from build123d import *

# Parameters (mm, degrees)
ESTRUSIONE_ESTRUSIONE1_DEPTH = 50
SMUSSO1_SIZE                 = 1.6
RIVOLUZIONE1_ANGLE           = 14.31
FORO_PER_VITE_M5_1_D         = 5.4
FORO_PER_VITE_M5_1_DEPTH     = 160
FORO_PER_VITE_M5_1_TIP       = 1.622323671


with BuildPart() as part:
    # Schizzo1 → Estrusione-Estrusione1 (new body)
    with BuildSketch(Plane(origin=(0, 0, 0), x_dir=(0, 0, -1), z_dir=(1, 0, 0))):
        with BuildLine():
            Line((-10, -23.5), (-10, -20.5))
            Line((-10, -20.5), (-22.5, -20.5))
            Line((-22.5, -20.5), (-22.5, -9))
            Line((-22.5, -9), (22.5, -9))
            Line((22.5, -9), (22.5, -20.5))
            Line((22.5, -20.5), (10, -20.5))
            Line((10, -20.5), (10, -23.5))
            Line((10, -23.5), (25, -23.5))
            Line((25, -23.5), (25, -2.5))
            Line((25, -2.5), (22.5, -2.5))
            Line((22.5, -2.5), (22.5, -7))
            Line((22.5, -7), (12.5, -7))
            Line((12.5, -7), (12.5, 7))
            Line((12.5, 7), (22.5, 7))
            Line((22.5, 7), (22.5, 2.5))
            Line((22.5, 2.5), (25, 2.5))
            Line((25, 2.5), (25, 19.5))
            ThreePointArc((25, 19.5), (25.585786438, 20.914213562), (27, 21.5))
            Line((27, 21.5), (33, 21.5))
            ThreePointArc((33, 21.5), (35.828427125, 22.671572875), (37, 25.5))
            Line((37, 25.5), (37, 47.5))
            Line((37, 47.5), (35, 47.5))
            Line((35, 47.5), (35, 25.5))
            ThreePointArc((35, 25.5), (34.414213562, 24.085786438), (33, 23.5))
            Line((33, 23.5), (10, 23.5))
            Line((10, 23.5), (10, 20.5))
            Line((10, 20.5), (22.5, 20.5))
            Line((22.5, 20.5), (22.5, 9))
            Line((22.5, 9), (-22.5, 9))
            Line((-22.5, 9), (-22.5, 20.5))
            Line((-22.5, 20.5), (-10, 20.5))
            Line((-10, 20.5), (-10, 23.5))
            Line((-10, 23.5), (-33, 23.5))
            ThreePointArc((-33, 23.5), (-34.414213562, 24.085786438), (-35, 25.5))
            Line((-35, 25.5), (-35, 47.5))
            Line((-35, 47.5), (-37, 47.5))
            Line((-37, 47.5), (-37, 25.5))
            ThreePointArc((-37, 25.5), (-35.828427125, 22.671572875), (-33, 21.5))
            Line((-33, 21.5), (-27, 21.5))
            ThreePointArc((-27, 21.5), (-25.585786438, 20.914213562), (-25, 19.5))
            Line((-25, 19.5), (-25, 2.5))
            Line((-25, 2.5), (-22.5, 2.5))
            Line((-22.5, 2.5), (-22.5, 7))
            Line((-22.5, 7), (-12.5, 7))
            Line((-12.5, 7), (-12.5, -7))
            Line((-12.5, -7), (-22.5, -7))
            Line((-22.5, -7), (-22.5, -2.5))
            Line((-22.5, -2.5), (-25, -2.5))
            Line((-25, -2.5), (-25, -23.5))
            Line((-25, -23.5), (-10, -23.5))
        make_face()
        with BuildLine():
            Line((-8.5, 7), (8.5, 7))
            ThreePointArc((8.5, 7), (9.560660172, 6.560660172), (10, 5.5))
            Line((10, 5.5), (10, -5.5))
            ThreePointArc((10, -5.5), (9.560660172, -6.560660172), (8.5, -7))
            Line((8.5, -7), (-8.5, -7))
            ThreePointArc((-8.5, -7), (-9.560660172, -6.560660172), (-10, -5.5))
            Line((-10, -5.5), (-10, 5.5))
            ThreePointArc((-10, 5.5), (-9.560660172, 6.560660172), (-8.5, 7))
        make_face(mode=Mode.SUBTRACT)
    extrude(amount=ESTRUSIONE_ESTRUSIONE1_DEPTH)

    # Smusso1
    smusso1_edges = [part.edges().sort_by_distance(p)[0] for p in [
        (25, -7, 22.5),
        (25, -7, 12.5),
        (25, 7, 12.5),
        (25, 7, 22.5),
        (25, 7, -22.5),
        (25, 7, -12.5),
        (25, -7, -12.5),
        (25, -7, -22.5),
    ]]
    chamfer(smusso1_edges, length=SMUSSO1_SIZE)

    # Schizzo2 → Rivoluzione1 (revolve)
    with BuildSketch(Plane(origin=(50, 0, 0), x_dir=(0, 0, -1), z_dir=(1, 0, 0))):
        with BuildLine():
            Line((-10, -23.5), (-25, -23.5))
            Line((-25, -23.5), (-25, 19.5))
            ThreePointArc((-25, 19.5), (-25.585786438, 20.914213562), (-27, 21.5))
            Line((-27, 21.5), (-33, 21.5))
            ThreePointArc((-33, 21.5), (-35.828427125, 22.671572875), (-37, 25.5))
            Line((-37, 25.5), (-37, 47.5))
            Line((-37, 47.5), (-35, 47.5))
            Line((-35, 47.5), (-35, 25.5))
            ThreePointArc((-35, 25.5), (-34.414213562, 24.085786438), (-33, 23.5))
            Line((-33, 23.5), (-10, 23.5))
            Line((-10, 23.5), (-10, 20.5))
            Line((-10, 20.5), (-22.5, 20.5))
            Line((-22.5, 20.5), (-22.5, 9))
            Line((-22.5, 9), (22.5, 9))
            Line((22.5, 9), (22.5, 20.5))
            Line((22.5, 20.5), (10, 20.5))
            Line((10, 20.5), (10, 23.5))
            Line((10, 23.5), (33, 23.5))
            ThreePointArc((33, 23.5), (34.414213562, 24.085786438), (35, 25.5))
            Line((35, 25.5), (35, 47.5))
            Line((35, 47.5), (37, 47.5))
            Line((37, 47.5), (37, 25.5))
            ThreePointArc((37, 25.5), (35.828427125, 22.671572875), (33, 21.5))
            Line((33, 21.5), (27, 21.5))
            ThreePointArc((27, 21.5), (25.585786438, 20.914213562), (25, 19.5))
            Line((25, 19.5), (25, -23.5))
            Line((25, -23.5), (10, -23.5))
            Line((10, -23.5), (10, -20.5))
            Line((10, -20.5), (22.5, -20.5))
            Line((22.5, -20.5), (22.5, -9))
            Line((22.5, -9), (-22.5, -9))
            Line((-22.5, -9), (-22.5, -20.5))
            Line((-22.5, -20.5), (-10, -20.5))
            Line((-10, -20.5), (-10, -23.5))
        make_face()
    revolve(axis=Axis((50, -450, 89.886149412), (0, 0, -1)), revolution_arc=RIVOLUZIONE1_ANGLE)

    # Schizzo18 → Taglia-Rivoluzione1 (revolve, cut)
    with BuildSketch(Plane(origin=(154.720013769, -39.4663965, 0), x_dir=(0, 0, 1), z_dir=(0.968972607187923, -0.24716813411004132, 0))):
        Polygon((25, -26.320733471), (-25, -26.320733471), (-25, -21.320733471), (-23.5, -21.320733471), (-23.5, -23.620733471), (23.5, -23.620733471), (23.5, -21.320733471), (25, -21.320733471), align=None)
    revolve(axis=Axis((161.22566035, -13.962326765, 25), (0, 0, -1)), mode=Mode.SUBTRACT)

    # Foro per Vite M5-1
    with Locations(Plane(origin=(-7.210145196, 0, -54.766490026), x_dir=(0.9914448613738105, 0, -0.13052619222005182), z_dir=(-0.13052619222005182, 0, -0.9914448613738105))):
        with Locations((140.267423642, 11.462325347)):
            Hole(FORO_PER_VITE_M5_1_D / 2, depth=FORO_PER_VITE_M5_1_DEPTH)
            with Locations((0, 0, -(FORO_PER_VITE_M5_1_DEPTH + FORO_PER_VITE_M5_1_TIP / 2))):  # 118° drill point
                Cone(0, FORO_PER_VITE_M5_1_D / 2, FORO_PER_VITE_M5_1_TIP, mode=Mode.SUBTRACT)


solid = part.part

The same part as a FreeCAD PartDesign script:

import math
import FreeCAD as App
import Part
import Sketcher

V = App.Vector
Q = App.Units.Quantity


def edges_at(feature, points):
    """Names of the edges that pass closest to the given points."""
    edges = feature.Shape.Edges
    near = lambda p: min(range(len(edges)), key=lambda i: edges[i].distToShape(Part.Vertex(*p))[0])
    return sorted({f"Edge{near(p) + 1}" for p in points})


def add_polygon(sketch, points):
    """Adds a closed chain of lines whose ends are joined by coincident constraints."""
    first, n = sketch.GeometryCount, len(points)
    for a, b in zip(points, points[1:] + points[:1]):
        sketch.addGeometry(Part.LineSegment(App.Vector(*a, 0), App.Vector(*b, 0)), False)
    for i in range(n):
        sketch.addConstraint(Sketcher.Constraint("Coincident", first + i, 2, first + (i + 1) % n, 1))

doc = App.newDocument("Part")
body = doc.addObject("PartDesign::Body", "Body")

sketch1 = body.newObject("Sketcher::SketchObject", "Sketch")
sketch1.AttachmentSupport = (doc.getObject("YZ_Plane"), [""])
sketch1.MapMode = "FlatFace"
sketch1.addGeometry(Part.LineSegment(V(-23.5, 10, 0), V(-20.5, 10, 0)), False)
sketch1.addGeometry(Part.LineSegment(V(-20.5, 10, 0), V(-20.5, 22.5, 0)), False)
sketch1.addGeometry(Part.LineSegment(V(-20.5, 22.5, 0), V(-9, 22.5, 0)), False)
sketch1.addGeometry(Part.LineSegment(V(-9, 22.5, 0), V(-9, -22.5, 0)), False)
sketch1.addGeometry(Part.LineSegment(V(-9, -22.5, 0), V(-20.5, -22.5, 0)), False)
sketch1.addGeometry(Part.LineSegment(V(-20.5, -22.5, 0), V(-20.5, -10, 0)), False)
sketch1.addGeometry(Part.LineSegment(V(-20.5, -10, 0), V(-23.5, -10, 0)), False)
sketch1.addGeometry(Part.LineSegment(V(-23.5, -10, 0), V(-23.5, -25, 0)), False)
sketch1.addGeometry(Part.LineSegment(V(-23.5, -25, 0), V(-2.5, -25, 0)), False)
sketch1.addGeometry(Part.LineSegment(V(-2.5, -25, 0), V(-2.5, -22.5, 0)), False)
sketch1.addGeometry(Part.LineSegment(V(-2.5, -22.5, 0), V(-7, -22.5, 0)), False)
sketch1.addGeometry(Part.LineSegment(V(-7, -22.5, 0), V(-7, -12.5, 0)), False)
sketch1.addGeometry(Part.LineSegment(V(-7, -12.5, 0), V(7, -12.5, 0)), False)
sketch1.addGeometry(Part.LineSegment(V(7, -12.5, 0), V(7, -22.5, 0)), False)
sketch1.addGeometry(Part.LineSegment(V(7, -22.5, 0), V(2.5, -22.5, 0)), False)
sketch1.addGeometry(Part.LineSegment(V(2.5, -22.5, 0), V(2.5, -25, 0)), False)
sketch1.addGeometry(Part.LineSegment(V(2.5, -25, 0), V(19.5, -25, 0)), False)
sketch1.addGeometry(Part.ArcOfCircle(Part.Circle(V(19.5, -27, 0), V(0, 0, 1), 2), math.radians(0), math.radians(90)), False)
sketch1.addGeometry(Part.LineSegment(V(21.5, -27, 0), V(21.5, -33, 0)), False)
sketch1.addGeometry(Part.ArcOfCircle(Part.Circle(V(25.5, -33, 0), V(0, 0, 1), 4), math.radians(180), math.radians(270)), False)
sketch1.addGeometry(Part.LineSegment(V(25.5, -37, 0), V(47.5, -37, 0)), False)
sketch1.addGeometry(Part.LineSegment(V(47.5, -37, 0), V(47.5, -35, 0)), False)
sketch1.addGeometry(Part.LineSegment(V(47.5, -35, 0), V(25.5, -35, 0)), False)
sketch1.addGeometry(Part.ArcOfCircle(Part.Circle(V(25.5, -33, 0), V(0, 0, 1), 2), math.radians(-180), math.radians(-90)), False)
sketch1.addGeometry(Part.LineSegment(V(23.5, -33, 0), V(23.5, -10, 0)), False)
sketch1.addGeometry(Part.LineSegment(V(23.5, -10, 0), V(20.5, -10, 0)), False)
sketch1.addGeometry(Part.LineSegment(V(20.5, -10, 0), V(20.5, -22.5, 0)), False)
sketch1.addGeometry(Part.LineSegment(V(20.5, -22.5, 0), V(9, -22.5, 0)), False)
sketch1.addGeometry(Part.LineSegment(V(9, -22.5, 0), V(9, 22.5, 0)), False)
sketch1.addGeometry(Part.LineSegment(V(9, 22.5, 0), V(20.5, 22.5, 0)), False)
sketch1.addGeometry(Part.LineSegment(V(20.5, 22.5, 0), V(20.5, 10, 0)), False)
sketch1.addGeometry(Part.LineSegment(V(20.5, 10, 0), V(23.5, 10, 0)), False)
sketch1.addGeometry(Part.LineSegment(V(23.5, 10, 0), V(23.5, 33, 0)), False)
sketch1.addGeometry(Part.ArcOfCircle(Part.Circle(V(25.5, 33, 0), V(0, 0, 1), 2), math.radians(90), math.radians(180)), False)
sketch1.addGeometry(Part.LineSegment(V(25.5, 35, 0), V(47.5, 35, 0)), False)
sketch1.addGeometry(Part.LineSegment(V(47.5, 35, 0), V(47.5, 37, 0)), False)
sketch1.addGeometry(Part.LineSegment(V(47.5, 37, 0), V(25.5, 37, 0)), False)
sketch1.addGeometry(Part.ArcOfCircle(Part.Circle(V(25.5, 33, 0), V(0, 0, 1), 4), math.radians(90), math.radians(180)), False)
sketch1.addGeometry(Part.LineSegment(V(21.5, 33, 0), V(21.5, 27, 0)), False)
sketch1.addGeometry(Part.ArcOfCircle(Part.Circle(V(19.5, 27, 0), V(0, 0, 1), 2), math.radians(-90), math.radians(0)), False)
sketch1.addGeometry(Part.LineSegment(V(19.5, 25, 0), V(2.5, 25, 0)), False)
sketch1.addGeometry(Part.LineSegment(V(2.5, 25, 0), V(2.5, 22.5, 0)), False)
sketch1.addGeometry(Part.LineSegment(V(2.5, 22.5, 0), V(7, 22.5, 0)), False)
sketch1.addGeometry(Part.LineSegment(V(7, 22.5, 0), V(7, 12.5, 0)), False)
sketch1.addGeometry(Part.LineSegment(V(7, 12.5, 0), V(-7, 12.5, 0)), False)
sketch1.addGeometry(Part.LineSegment(V(-7, 12.5, 0), V(-7, 22.5, 0)), False)
sketch1.addGeometry(Part.LineSegment(V(-7, 22.5, 0), V(-2.5, 22.5, 0)), False)
sketch1.addGeometry(Part.LineSegment(V(-2.5, 22.5, 0), V(-2.5, 25, 0)), False)
sketch1.addGeometry(Part.LineSegment(V(-2.5, 25, 0), V(-23.5, 25, 0)), False)
sketch1.addGeometry(Part.LineSegment(V(-23.5, 25, 0), V(-23.5, 10, 0)), False)
sketch1.addGeometry(Part.ArcOfCircle(Part.Circle(V(5.5, 8.5, 0), V(0, 0, 1), 1.5), math.radians(0), math.radians(90)), False)
sketch1.addGeometry(Part.LineSegment(V(7, 8.5, 0), V(7, -8.5, 0)), False)
sketch1.addGeometry(Part.ArcOfCircle(Part.Circle(V(5.5, -8.5, 0), V(0, 0, 1), 1.5), math.radians(-90), math.radians(0)), False)
sketch1.addGeometry(Part.LineSegment(V(5.5, -10, 0), V(-5.5, -10, 0)), False)
sketch1.addGeometry(Part.ArcOfCircle(Part.Circle(V(-5.5, -8.5, 0), V(0, 0, 1), 1.5), math.radians(180), math.radians(270)), False)
sketch1.addGeometry(Part.LineSegment(V(-7, -8.5, 0), V(-7, 8.5, 0)), False)
sketch1.addGeometry(Part.ArcOfCircle(Part.Circle(V(-5.5, 8.5, 0), V(0, 0, 1), 1.5), math.radians(90), math.radians(180)), False)
sketch1.addGeometry(Part.LineSegment(V(-5.5, 10, 0), V(5.5, 10, 0)), False)
sketch1.addConstraint(Sketcher.Constraint("Coincident", 0, 2, 1, 1))
sketch1.addConstraint(Sketcher.Constraint("Coincident", 1, 2, 2, 1))
sketch1.addConstraint(Sketcher.Constraint("Coincident", 2, 2, 3, 1))
sketch1.addConstraint(Sketcher.Constraint("Coincident", 3, 2, 4, 1))
sketch1.addConstraint(Sketcher.Constraint("Coincident", 4, 2, 5, 1))
sketch1.addConstraint(Sketcher.Constraint("Coincident", 5, 2, 6, 1))
sketch1.addConstraint(Sketcher.Constraint("Coincident", 6, 2, 7, 1))
sketch1.addConstraint(Sketcher.Constraint("Coincident", 7, 2, 8, 1))
sketch1.addConstraint(Sketcher.Constraint("Coincident", 8, 2, 9, 1))
sketch1.addConstraint(Sketcher.Constraint("Coincident", 9, 2, 10, 1))
sketch1.addConstraint(Sketcher.Constraint("Coincident", 10, 2, 11, 1))
sketch1.addConstraint(Sketcher.Constraint("Coincident", 11, 2, 12, 1))
sketch1.addConstraint(Sketcher.Constraint("Coincident", 12, 2, 13, 1))
sketch1.addConstraint(Sketcher.Constraint("Coincident", 13, 2, 14, 1))
sketch1.addConstraint(Sketcher.Constraint("Coincident", 14, 2, 15, 1))
sketch1.addConstraint(Sketcher.Constraint("Coincident", 15, 2, 16, 1))
sketch1.addConstraint(Sketcher.Constraint("Tangent", 16, 2, 17, 2))
sketch1.addConstraint(Sketcher.Constraint("Tangent", 17, 1, 18, 1))
sketch1.addConstraint(Sketcher.Constraint("Tangent", 18, 2, 19, 1))
sketch1.addConstraint(Sketcher.Constraint("Tangent", 19, 2, 20, 1))
sketch1.addConstraint(Sketcher.Constraint("Coincident", 20, 2, 21, 1))
sketch1.addConstraint(Sketcher.Constraint("Coincident", 21, 2, 22, 1))
sketch1.addConstraint(Sketcher.Constraint("Tangent", 22, 2, 23, 2))
sketch1.addConstraint(Sketcher.Constraint("Tangent", 23, 1, 24, 1))
sketch1.addConstraint(Sketcher.Constraint("Coincident", 24, 2, 25, 1))
sketch1.addConstraint(Sketcher.Constraint("Coincident", 25, 2, 26, 1))
sketch1.addConstraint(Sketcher.Constraint("Coincident", 26, 2, 27, 1))
sketch1.addConstraint(Sketcher.Constraint("Coincident", 27, 2, 28, 1))
sketch1.addConstraint(Sketcher.Constraint("Coincident", 28, 2, 29, 1))
sketch1.addConstraint(Sketcher.Constraint("Coincident", 29, 2, 30, 1))
sketch1.addConstraint(Sketcher.Constraint("Coincident", 30, 2, 31, 1))
sketch1.addConstraint(Sketcher.Constraint("Coincident", 31, 2, 32, 1))
sketch1.addConstraint(Sketcher.Constraint("Tangent", 32, 2, 33, 2))
sketch1.addConstraint(Sketcher.Constraint("Tangent", 33, 1, 34, 1))
sketch1.addConstraint(Sketcher.Constraint("Coincident", 34, 2, 35, 1))
sketch1.addConstraint(Sketcher.Constraint("Coincident", 35, 2, 36, 1))
sketch1.addConstraint(Sketcher.Constraint("Tangent", 36, 2, 37, 1))
sketch1.addConstraint(Sketcher.Constraint("Tangent", 37, 2, 38, 1))
sketch1.addConstraint(Sketcher.Constraint("Tangent", 38, 2, 39, 2))
sketch1.addConstraint(Sketcher.Constraint("Tangent", 39, 1, 40, 1))
sketch1.addConstraint(Sketcher.Constraint("Coincident", 40, 2, 41, 1))
sketch1.addConstraint(Sketcher.Constraint("Coincident", 41, 2, 42, 1))
sketch1.addConstraint(Sketcher.Constraint("Coincident", 42, 2, 43, 1))
sketch1.addConstraint(Sketcher.Constraint("Coincident", 43, 2, 44, 1))
sketch1.addConstraint(Sketcher.Constraint("Coincident", 44, 2, 45, 1))
sketch1.addConstraint(Sketcher.Constraint("Coincident", 45, 2, 46, 1))
sketch1.addConstraint(Sketcher.Constraint("Coincident", 46, 2, 47, 1))
sketch1.addConstraint(Sketcher.Constraint("Coincident", 47, 2, 48, 1))
sketch1.addConstraint(Sketcher.Constraint("Coincident", 48, 2, 49, 1))
sketch1.addConstraint(Sketcher.Constraint("Coincident", 49, 2, 0, 1))
sketch1.addConstraint(Sketcher.Constraint("Tangent", 50, 1, 51, 1))
sketch1.addConstraint(Sketcher.Constraint("Tangent", 51, 2, 52, 2))
sketch1.addConstraint(Sketcher.Constraint("Tangent", 52, 1, 53, 1))
sketch1.addConstraint(Sketcher.Constraint("Tangent", 53, 2, 54, 2))
sketch1.addConstraint(Sketcher.Constraint("Tangent", 54, 1, 55, 1))
sketch1.addConstraint(Sketcher.Constraint("Tangent", 55, 2, 56, 2))
sketch1.addConstraint(Sketcher.Constraint("Tangent", 56, 1, 57, 1))
sketch1.addConstraint(Sketcher.Constraint("Tangent", 57, 2, 50, 2))
sketch1.addConstraint(Sketcher.Constraint("Horizontal", 0))
sketch1.addConstraint(Sketcher.Constraint("Vertical", 1))
sketch1.addConstraint(Sketcher.Constraint("Horizontal", 2))
sketch1.addConstraint(Sketcher.Constraint("Vertical", 3))
sketch1.addConstraint(Sketcher.Constraint("Horizontal", 4))
sketch1.addConstraint(Sketcher.Constraint("Vertical", 5))
sketch1.addConstraint(Sketcher.Constraint("Horizontal", 6))
sketch1.addConstraint(Sketcher.Constraint("Vertical", 7))
sketch1.addConstraint(Sketcher.Constraint("Horizontal", 8))
sketch1.addConstraint(Sketcher.Constraint("Vertical", 9))
sketch1.addConstraint(Sketcher.Constraint("Horizontal", 10))
sketch1.addConstraint(Sketcher.Constraint("Vertical", 11))
sketch1.addConstraint(Sketcher.Constraint("Horizontal", 12))
sketch1.addConstraint(Sketcher.Constraint("Vertical", 13))
sketch1.addConstraint(Sketcher.Constraint("Horizontal", 14))
sketch1.addConstraint(Sketcher.Constraint("Vertical", 15))
sketch1.addConstraint(Sketcher.Constraint("Horizontal", 16))
sketch1.addConstraint(Sketcher.Constraint("Vertical", 18))
sketch1.addConstraint(Sketcher.Constraint("Horizontal", 20))
sketch1.addConstraint(Sketcher.Constraint("Vertical", 21))
sketch1.addConstraint(Sketcher.Constraint("Horizontal", 22))
sketch1.addConstraint(Sketcher.Constraint("Vertical", 24))
sketch1.addConstraint(Sketcher.Constraint("Horizontal", 25))
sketch1.addConstraint(Sketcher.Constraint("Vertical", 26))
sketch1.addConstraint(Sketcher.Constraint("Horizontal", 27))
sketch1.addConstraint(Sketcher.Constraint("Vertical", 28))
sketch1.addConstraint(Sketcher.Constraint("Horizontal", 29))
sketch1.addConstraint(Sketcher.Constraint("Vertical", 30))
sketch1.addConstraint(Sketcher.Constraint("Horizontal", 31))
sketch1.addConstraint(Sketcher.Constraint("Vertical", 32))
sketch1.addConstraint(Sketcher.Constraint("Horizontal", 34))
sketch1.addConstraint(Sketcher.Constraint("Vertical", 35))
sketch1.addConstraint(Sketcher.Constraint("Horizontal", 36))
sketch1.addConstraint(Sketcher.Constraint("Vertical", 38))
sketch1.addConstraint(Sketcher.Constraint("Horizontal", 40))
sketch1.addConstraint(Sketcher.Constraint("Vertical", 41))
sketch1.addConstraint(Sketcher.Constraint("Horizontal", 42))
sketch1.addConstraint(Sketcher.Constraint("Vertical", 43))
sketch1.addConstraint(Sketcher.Constraint("Horizontal", 44))
sketch1.addConstraint(Sketcher.Constraint("Vertical", 45))
sketch1.addConstraint(Sketcher.Constraint("Horizontal", 46))
sketch1.addConstraint(Sketcher.Constraint("Vertical", 47))
sketch1.addConstraint(Sketcher.Constraint("Horizontal", 48))
sketch1.addConstraint(Sketcher.Constraint("Vertical", 49))
sketch1.addConstraint(Sketcher.Constraint("Vertical", 51))
sketch1.addConstraint(Sketcher.Constraint("Horizontal", 53))
sketch1.addConstraint(Sketcher.Constraint("Vertical", 55))
sketch1.addConstraint(Sketcher.Constraint("Horizontal", 57))
sketch1.addConstraint(Sketcher.Constraint("Coincident", 23, 3, 19, 3))
sketch1.addConstraint(Sketcher.Constraint("Coincident", 37, 3, 33, 3))
sketch1.addConstraint(Sketcher.Constraint("Equal", 17, 23))
sketch1.addConstraint(Sketcher.Constraint("Equal", 23, 33))
sketch1.addConstraint(Sketcher.Constraint("Equal", 19, 37))
sketch1.addConstraint(Sketcher.Constraint("Equal", 33, 39))
sketch1.addConstraint(Sketcher.Constraint("Equal", 50, 52))
sketch1.addConstraint(Sketcher.Constraint("Equal", 52, 54))
sketch1.addConstraint(Sketcher.Constraint("Equal", 54, 56))
sketch1.addConstraint(Sketcher.Constraint("Symmetric", 50, 3, 54, 3, -1, 1))
sketch1.addConstraint(Sketcher.Constraint("Symmetric", 0, 2, 25, 2, -1, 1))
sketch1.addConstraint(Sketcher.Constraint("Symmetric", 2, 2, 27, 2, -1, 1))
sketch1.addConstraint(Sketcher.Constraint("Symmetric", 4, 2, 29, 2, -1, 1))
sketch1.addConstraint(Sketcher.Constraint("Symmetric", 6, 2, 31, 2, -1, 1))
sketch1.addConstraint(Sketcher.Constraint("Symmetric", 8, 2, 40, 2, -1, 1))
sketch1.addConstraint(Sketcher.Constraint("Symmetric", 10, 2, 42, 2, -1, 1))
sketch1.addConstraint(Sketcher.Constraint("Symmetric", 12, 2, 44, 2, -1, 1))
sketch1.addConstraint(Sketcher.Constraint("Symmetric", 14, 2, 46, 2, -1, 1))
sketch1.addConstraint(Sketcher.Constraint("Symmetric", 10, 2, 13, 2, -2))
sketch1.addConstraint(Sketcher.Constraint("Symmetric", 8, 2, 15, 2, -2))
sketch1.addConstraint(Sketcher.Constraint("Symmetric", 6, 2, 24, 2, -2))
sketch1.addConstraint(Sketcher.Constraint("Symmetric", 4, 2, 26, 2, -2))
sketch1.addConstraint(Sketcher.Constraint("Symmetric", 21, 2, 34, 2, -1))
sketch1.addConstraint(Sketcher.Constraint("Symmetric", 7, 2, 48, 2, -1))
sketch1.addConstraint(Sketcher.Constraint("Horizontal", 4, 2, 9, 2))
sketch1.addConstraint(Sketcher.Constraint("Horizontal", 25, 2, 52, 1))
sketch1.addConstraint(Sketcher.Constraint("Vertical", 43, 2, 50, 1))
sketch1.addConstraint(Sketcher.Constraint("Equal", 40, 51))
sketch1.addConstraint(Sketcher.Constraint("Radius", 17, Q("2 mm")))
sketch1.addConstraint(Sketcher.Constraint("Radius", 19, Q("4 mm")))
sketch1.addConstraint(Sketcher.Constraint("Radius", 50, Q("1.5 mm")))
sketch1.addConstraint(Sketcher.Constraint("DistanceX", 0, 1, 0, 2, Q("3 mm")))
sketch1.addConstraint(Sketcher.Constraint("DistanceX", 8, 1, 8, 2, Q("21 mm")))
sketch1.addConstraint(Sketcher.Constraint("DistanceX", 12, 1, 12, 2, Q("14 mm")))
sketch1.addConstraint(Sketcher.Constraint("DistanceX", 20, 1, 20, 2, Q("22 mm")))
sketch1.addConstraint(Sketcher.Constraint("DistanceY", 3, 2, 3, 1, Q("45 mm")))
sketch1.addConstraint(Sketcher.Constraint("DistanceY", 7, 2, 7, 1, Q("15 mm")))
sketch1.addConstraint(Sketcher.Constraint("DistanceY", 11, 1, 11, 2, Q("10 mm")))
sketch1.addConstraint(Sketcher.Constraint("DistanceY", 18, 2, 18, 1, Q("6 mm")))
sketch1.addConstraint(Sketcher.Constraint("DistanceX", 2, 1, 2, 2, Q("11.5 mm")))
sketch1.addConstraint(Sketcher.Constraint("DistanceX", 10, 2, 10, 1, Q("4.5 mm")))
pad1 = body.newObject("PartDesign::Pad", "Pad")
pad1.Profile = sketch1
pad1.Length = 50
doc.recompute()

chamfer = body.newObject("PartDesign::Chamfer", "Chamfer")
chamfer.Base = (pad1, edges_at(pad1, [
    (25, -7, 22.5),
    (25, -7, 12.5),
    (25, 7, 12.5),
    (25, 7, 22.5),
    (25, 7, -22.5),
    (25, 7, -12.5),
    (25, -7, -12.5),
    (25, -7, -22.5),
]))
chamfer.Size = 1.6

sketch2 = body.newObject("Sketcher::SketchObject", "Sketch001")
sketch2.AttachmentSupport = (doc.getObject("YZ_Plane"), [""])
sketch2.MapMode = "FlatFace"
sketch2.AttachmentOffset = App.Placement(V(0, 0, 50), App.Rotation())
sketch2.addGeometry(Part.LineSegment(V(-23.5, 25, 0), V(-23.5, 10, 0)), False)
sketch2.addGeometry(Part.LineSegment(V(-23.5, 10, 0), V(-20.5, 10, 0)), False)
sketch2.addGeometry(Part.LineSegment(V(-20.5, 10, 0), V(-20.5, 22.5, 0)), False)
sketch2.addGeometry(Part.LineSegment(V(-20.5, 22.5, 0), V(-9, 22.5, 0)), False)
sketch2.addGeometry(Part.LineSegment(V(-9, 22.5, 0), V(-9, -22.5, 0)), False)
sketch2.addGeometry(Part.LineSegment(V(-9, -22.5, 0), V(-20.5, -22.5, 0)), False)
sketch2.addGeometry(Part.LineSegment(V(-20.5, -22.5, 0), V(-20.5, -10, 0)), False)
sketch2.addGeometry(Part.LineSegment(V(-20.5, -10, 0), V(-23.5, -10, 0)), False)
sketch2.addGeometry(Part.LineSegment(V(-23.5, -10, 0), V(-23.5, -25, 0)), False)
sketch2.addGeometry(Part.LineSegment(V(-23.5, -25, 0), V(19.5, -25, 0)), False)
sketch2.addGeometry(Part.ArcOfCircle(Part.Circle(V(19.5, -27, 0), V(0, 0, 1), 2), math.radians(0), math.radians(90)), False)
sketch2.addGeometry(Part.LineSegment(V(21.5, -27, 0), V(21.5, -33, 0)), False)
sketch2.addGeometry(Part.ArcOfCircle(Part.Circle(V(25.5, -33, 0), V(0, 0, 1), 4), math.radians(180), math.radians(270)), False)
sketch2.addGeometry(Part.LineSegment(V(25.5, -37, 0), V(47.5, -37, 0)), False)
sketch2.addGeometry(Part.LineSegment(V(47.5, -37, 0), V(47.5, -35, 0)), False)
sketch2.addGeometry(Part.LineSegment(V(47.5, -35, 0), V(25.5, -35, 0)), False)
sketch2.addGeometry(Part.ArcOfCircle(Part.Circle(V(25.5, -33, 0), V(0, 0, 1), 2), math.radians(-180), math.radians(-90)), False)
sketch2.addGeometry(Part.LineSegment(V(23.5, -33, 0), V(23.5, -10, 0)), False)
sketch2.addGeometry(Part.LineSegment(V(23.5, -10, 0), V(20.5, -10, 0)), False)
sketch2.addGeometry(Part.LineSegment(V(20.5, -10, 0), V(20.5, -22.5, 0)), False)
sketch2.addGeometry(Part.LineSegment(V(20.5, -22.5, 0), V(9, -22.5, 0)), False)
sketch2.addGeometry(Part.LineSegment(V(9, -22.5, 0), V(9, 22.5, 0)), False)
sketch2.addGeometry(Part.LineSegment(V(9, 22.5, 0), V(20.5, 22.5, 0)), False)
sketch2.addGeometry(Part.LineSegment(V(20.5, 22.5, 0), V(20.5, 10, 0)), False)
sketch2.addGeometry(Part.LineSegment(V(20.5, 10, 0), V(23.5, 10, 0)), False)
sketch2.addGeometry(Part.LineSegment(V(23.5, 10, 0), V(23.5, 33, 0)), False)
sketch2.addGeometry(Part.ArcOfCircle(Part.Circle(V(25.5, 33, 0), V(0, 0, 1), 2), math.radians(90), math.radians(180)), False)
sketch2.addGeometry(Part.LineSegment(V(25.5, 35, 0), V(47.5, 35, 0)), False)
sketch2.addGeometry(Part.LineSegment(V(47.5, 35, 0), V(47.5, 37, 0)), False)
sketch2.addGeometry(Part.LineSegment(V(47.5, 37, 0), V(25.5, 37, 0)), False)
sketch2.addGeometry(Part.ArcOfCircle(Part.Circle(V(25.5, 33, 0), V(0, 0, 1), 4), math.radians(90), math.radians(180)), False)
sketch2.addGeometry(Part.LineSegment(V(21.5, 33, 0), V(21.5, 27, 0)), False)
sketch2.addGeometry(Part.ArcOfCircle(Part.Circle(V(19.5, 27, 0), V(0, 0, 1), 2), math.radians(-90), math.radians(0)), False)
sketch2.addGeometry(Part.LineSegment(V(19.5, 25, 0), V(-23.5, 25, 0)), False)
sketch2.addGeometry(Part.LineSegment(V(-450, 37, 0), V(-450, -37, 0)), True)
sketch2.addConstraint(Sketcher.Constraint("Coincident", 0, 2, 1, 1))
sketch2.addConstraint(Sketcher.Constraint("Coincident", 1, 2, 2, 1))
sketch2.addConstraint(Sketcher.Constraint("Coincident", 2, 2, 3, 1))
sketch2.addConstraint(Sketcher.Constraint("Coincident", 3, 2, 4, 1))
sketch2.addConstraint(Sketcher.Constraint("Coincident", 4, 2, 5, 1))
sketch2.addConstraint(Sketcher.Constraint("Coincident", 5, 2, 6, 1))
sketch2.addConstraint(Sketcher.Constraint("Coincident", 6, 2, 7, 1))
sketch2.addConstraint(Sketcher.Constraint("Coincident", 7, 2, 8, 1))
sketch2.addConstraint(Sketcher.Constraint("Coincident", 8, 2, 9, 1))
sketch2.addConstraint(Sketcher.Constraint("Tangent", 9, 2, 10, 2))
sketch2.addConstraint(Sketcher.Constraint("Tangent", 10, 1, 11, 1))
sketch2.addConstraint(Sketcher.Constraint("Tangent", 11, 2, 12, 1))
sketch2.addConstraint(Sketcher.Constraint("Tangent", 12, 2, 13, 1))
sketch2.addConstraint(Sketcher.Constraint("Coincident", 13, 2, 14, 1))
sketch2.addConstraint(Sketcher.Constraint("Coincident", 14, 2, 15, 1))
sketch2.addConstraint(Sketcher.Constraint("Tangent", 15, 2, 16, 2))
sketch2.addConstraint(Sketcher.Constraint("Tangent", 16, 1, 17, 1))
sketch2.addConstraint(Sketcher.Constraint("Coincident", 17, 2, 18, 1))
sketch2.addConstraint(Sketcher.Constraint("Coincident", 18, 2, 19, 1))
sketch2.addConstraint(Sketcher.Constraint("Coincident", 19, 2, 20, 1))
sketch2.addConstraint(Sketcher.Constraint("Coincident", 20, 2, 21, 1))
sketch2.addConstraint(Sketcher.Constraint("Coincident", 21, 2, 22, 1))
sketch2.addConstraint(Sketcher.Constraint("Coincident", 22, 2, 23, 1))
sketch2.addConstraint(Sketcher.Constraint("Coincident", 23, 2, 24, 1))
sketch2.addConstraint(Sketcher.Constraint("Coincident", 24, 2, 25, 1))
sketch2.addConstraint(Sketcher.Constraint("Tangent", 25, 2, 26, 2))
sketch2.addConstraint(Sketcher.Constraint("Tangent", 26, 1, 27, 1))
sketch2.addConstraint(Sketcher.Constraint("Coincident", 27, 2, 28, 1))
sketch2.addConstraint(Sketcher.Constraint("Coincident", 28, 2, 29, 1))
sketch2.addConstraint(Sketcher.Constraint("Tangent", 29, 2, 30, 1))
sketch2.addConstraint(Sketcher.Constraint("Tangent", 30, 2, 31, 1))
sketch2.addConstraint(Sketcher.Constraint("Tangent", 31, 2, 32, 2))
sketch2.addConstraint(Sketcher.Constraint("Tangent", 32, 1, 33, 1))
sketch2.addConstraint(Sketcher.Constraint("Coincident", 33, 2, 0, 1))
sketch2.addConstraint(Sketcher.Constraint("Vertical", 0))
sketch2.addConstraint(Sketcher.Constraint("Horizontal", 1))
sketch2.addConstraint(Sketcher.Constraint("Vertical", 2))
sketch2.addConstraint(Sketcher.Constraint("Horizontal", 3))
sketch2.addConstraint(Sketcher.Constraint("Vertical", 4))
sketch2.addConstraint(Sketcher.Constraint("Horizontal", 5))
sketch2.addConstraint(Sketcher.Constraint("Vertical", 6))
sketch2.addConstraint(Sketcher.Constraint("Horizontal", 7))
sketch2.addConstraint(Sketcher.Constraint("Vertical", 8))
sketch2.addConstraint(Sketcher.Constraint("Horizontal", 9))
sketch2.addConstraint(Sketcher.Constraint("Vertical", 11))
sketch2.addConstraint(Sketcher.Constraint("Horizontal", 13))
sketch2.addConstraint(Sketcher.Constraint("Vertical", 14))
sketch2.addConstraint(Sketcher.Constraint("Horizontal", 15))
sketch2.addConstraint(Sketcher.Constraint("Vertical", 17))
sketch2.addConstraint(Sketcher.Constraint("Horizontal", 18))
sketch2.addConstraint(Sketcher.Constraint("Vertical", 19))
sketch2.addConstraint(Sketcher.Constraint("Horizontal", 20))
sketch2.addConstraint(Sketcher.Constraint("Vertical", 21))
sketch2.addConstraint(Sketcher.Constraint("Horizontal", 22))
sketch2.addConstraint(Sketcher.Constraint("Vertical", 23))
sketch2.addConstraint(Sketcher.Constraint("Horizontal", 24))
sketch2.addConstraint(Sketcher.Constraint("Vertical", 25))
sketch2.addConstraint(Sketcher.Constraint("Horizontal", 27))
sketch2.addConstraint(Sketcher.Constraint("Vertical", 28))
sketch2.addConstraint(Sketcher.Constraint("Horizontal", 29))
sketch2.addConstraint(Sketcher.Constraint("Vertical", 31))
sketch2.addConstraint(Sketcher.Constraint("Horizontal", 33))
sketch2.addConstraint(Sketcher.Constraint("Vertical", 34))
sketch2.addConstraint(Sketcher.Constraint("Coincident", 16, 3, 12, 3))
sketch2.addConstraint(Sketcher.Constraint("Coincident", 30, 3, 26, 3))
sketch2.addConstraint(Sketcher.Constraint("Equal", 10, 16))
sketch2.addConstraint(Sketcher.Constraint("Equal", 16, 26))
sketch2.addConstraint(Sketcher.Constraint("Equal", 12, 30))
sketch2.addConstraint(Sketcher.Constraint("Equal", 26, 32))
sketch2.addConstraint(Sketcher.Constraint("Symmetric", 0, 2, 17, 2, -1, 1))
sketch2.addConstraint(Sketcher.Constraint("Symmetric", 2, 2, 19, 2, -1, 1))
sketch2.addConstraint(Sketcher.Constraint("Symmetric", 4, 2, 21, 2, -1, 1))
sketch2.addConstraint(Sketcher.Constraint("Symmetric", 6, 2, 23, 2, -1, 1))
sketch2.addConstraint(Sketcher.Constraint("Symmetric", 7, 2, 17, 2, -2))
sketch2.addConstraint(Sketcher.Constraint("Symmetric", 5, 2, 19, 2, -2))
sketch2.addConstraint(Sketcher.Constraint("Symmetric", 12, 3, 26, 3, -1))
sketch2.addConstraint(Sketcher.Constraint("Horizontal", 29, 2, 34, 1))
sketch2.addConstraint(Sketcher.Constraint("Horizontal", 13, 2, 34, 2))
sketch2.addConstraint(Sketcher.Constraint("Vertical", 14, 2, 27, 2))
sketch2.addConstraint(Sketcher.Constraint("Equal", 0, 8))
sketch2.addConstraint(Sketcher.Constraint("Radius", 10, Q("2 mm")))
sketch2.addConstraint(Sketcher.Constraint("Radius", 12, Q("4 mm")))
sketch2.addConstraint(Sketcher.Constraint("DistanceX", 1, 1, 1, 2, Q("3 mm")))
sketch2.addConstraint(Sketcher.Constraint("DistanceX", 9, 1, 9, 2, Q("43 mm")))
sketch2.addConstraint(Sketcher.Constraint("DistanceX", 13, 1, 13, 2, Q("22 mm")))
sketch2.addConstraint(Sketcher.Constraint("DistanceY", 0, 2, 0, 1, Q("15 mm")))
sketch2.addConstraint(Sketcher.Constraint("DistanceY", 4, 2, 4, 1, Q("45 mm")))
sketch2.addConstraint(Sketcher.Constraint("DistanceY", 11, 2, 11, 1, Q("6 mm")))
sketch2.addConstraint(Sketcher.Constraint("DistanceY", 34, 2, 34, 1, Q("74 mm")))
sketch2.addConstraint(Sketcher.Constraint("DistanceX", 3, 1, 3, 2, Q("11.5 mm")))
sketch2.addConstraint(Sketcher.Constraint("DistanceX", 34, 1, -1, 1, Q("450 mm")))
revolution = body.newObject("PartDesign::Revolution", "Revolution")
revolution.Profile = sketch2
revolution.ReferenceAxis = (sketch2, ["Axis0"])
revolution.Angle = 14.31

sketch3 = body.newObject("Sketcher::SketchObject", "Sketch002")
sketch3.Placement = App.Placement(V(154.720014, -39.466397, 0), App.Rotation(V(0, 0, 1), V(-0.247168134, -0.968972607, 0), V(0.968972607, -0.247168134, 0), "ZXY"))
add_polygon(sketch3, [(-25, -26.3), (25, -26.3), (25, -21.3), (23.5, -21.3), (23.5, -23.6), (-23.5, -23.6), (-23.5, -21.3), (-25, -21.3)])
sketch3.addGeometry(Part.LineSegment(V(25, -26.3, 0), V(-25, -26.3, 0)), True)
sketch3.addConstraint(Sketcher.Constraint("Horizontal", 0))
sketch3.addConstraint(Sketcher.Constraint("Vertical", 1))
sketch3.addConstraint(Sketcher.Constraint("Horizontal", 2))
sketch3.addConstraint(Sketcher.Constraint("Vertical", 3))
sketch3.addConstraint(Sketcher.Constraint("Horizontal", 4))
sketch3.addConstraint(Sketcher.Constraint("Vertical", 5))
sketch3.addConstraint(Sketcher.Constraint("Horizontal", 6))
sketch3.addConstraint(Sketcher.Constraint("Vertical", 7))
sketch3.addConstraint(Sketcher.Constraint("Horizontal", 8))
sketch3.addConstraint(Sketcher.Constraint("Coincident", 8, 1, 0, 2))
sketch3.addConstraint(Sketcher.Constraint("Symmetric", 2, 2, 5, 2, -2))
sketch3.addConstraint(Sketcher.Constraint("Vertical", 6, 2, 8, 2))
sketch3.addConstraint(Sketcher.Constraint("Equal", 2, 6))
sketch3.addConstraint(Sketcher.Constraint("DistanceX", 0, 1, 0, 2, Q("50 mm")))
sketch3.addConstraint(Sketcher.Constraint("DistanceX", 4, 2, 4, 1, Q("47 mm")))
sketch3.addConstraint(Sketcher.Constraint("DistanceY", 1, 1, 1, 2, Q("5 mm")))
sketch3.addConstraint(Sketcher.Constraint("DistanceY", 3, 2, 3, 1, Q("2.3 mm")))
sketch3.addConstraint(Sketcher.Constraint("DistanceY", 0, 2, -1, 1, Q("26.320733 mm")))
groove = body.newObject("PartDesign::Groove", "Groove")
groove.Profile = sketch3
groove.ReferenceAxis = (sketch3, ["Axis0"])
groove.Angle = 360

sketch4 = body.newObject("Sketcher::SketchObject", "Sketch003")
sketch4.Placement = App.Placement(V(-7.210145, 0, -54.76649), App.Rotation(V(0.991444861, 0, -0.130526192), V(0, -0.999999999, 0), V(-0.130526192, 0, -0.991444861), "ZXY"))
sketch4.addGeometry(Part.Circle(V(140.3, 11.5, 0), V(0, 0, 1), 2.7), False)
sketch4.addConstraint(Sketcher.Constraint("Diameter", 0, Q("5.4 mm")))
sketch4.addConstraint(Sketcher.Constraint("DistanceX", -1, 1, 0, 3, Q("140.267424 mm")))
sketch4.addConstraint(Sketcher.Constraint("DistanceY", -1, 1, 0, 3, Q("11.462325 mm")))
doc.recompute()
hole = body.newObject("PartDesign::Hole", "Hole")
hole.Profile = sketch4
hole.ThreadType = "None"
hole.Diameter = 5.4
hole.DepthType = "Dimension"
hole.Depth = 160
hole.DrillPoint = "Angled"
hole.DrillPointAngle = 118

doc.recompute()
